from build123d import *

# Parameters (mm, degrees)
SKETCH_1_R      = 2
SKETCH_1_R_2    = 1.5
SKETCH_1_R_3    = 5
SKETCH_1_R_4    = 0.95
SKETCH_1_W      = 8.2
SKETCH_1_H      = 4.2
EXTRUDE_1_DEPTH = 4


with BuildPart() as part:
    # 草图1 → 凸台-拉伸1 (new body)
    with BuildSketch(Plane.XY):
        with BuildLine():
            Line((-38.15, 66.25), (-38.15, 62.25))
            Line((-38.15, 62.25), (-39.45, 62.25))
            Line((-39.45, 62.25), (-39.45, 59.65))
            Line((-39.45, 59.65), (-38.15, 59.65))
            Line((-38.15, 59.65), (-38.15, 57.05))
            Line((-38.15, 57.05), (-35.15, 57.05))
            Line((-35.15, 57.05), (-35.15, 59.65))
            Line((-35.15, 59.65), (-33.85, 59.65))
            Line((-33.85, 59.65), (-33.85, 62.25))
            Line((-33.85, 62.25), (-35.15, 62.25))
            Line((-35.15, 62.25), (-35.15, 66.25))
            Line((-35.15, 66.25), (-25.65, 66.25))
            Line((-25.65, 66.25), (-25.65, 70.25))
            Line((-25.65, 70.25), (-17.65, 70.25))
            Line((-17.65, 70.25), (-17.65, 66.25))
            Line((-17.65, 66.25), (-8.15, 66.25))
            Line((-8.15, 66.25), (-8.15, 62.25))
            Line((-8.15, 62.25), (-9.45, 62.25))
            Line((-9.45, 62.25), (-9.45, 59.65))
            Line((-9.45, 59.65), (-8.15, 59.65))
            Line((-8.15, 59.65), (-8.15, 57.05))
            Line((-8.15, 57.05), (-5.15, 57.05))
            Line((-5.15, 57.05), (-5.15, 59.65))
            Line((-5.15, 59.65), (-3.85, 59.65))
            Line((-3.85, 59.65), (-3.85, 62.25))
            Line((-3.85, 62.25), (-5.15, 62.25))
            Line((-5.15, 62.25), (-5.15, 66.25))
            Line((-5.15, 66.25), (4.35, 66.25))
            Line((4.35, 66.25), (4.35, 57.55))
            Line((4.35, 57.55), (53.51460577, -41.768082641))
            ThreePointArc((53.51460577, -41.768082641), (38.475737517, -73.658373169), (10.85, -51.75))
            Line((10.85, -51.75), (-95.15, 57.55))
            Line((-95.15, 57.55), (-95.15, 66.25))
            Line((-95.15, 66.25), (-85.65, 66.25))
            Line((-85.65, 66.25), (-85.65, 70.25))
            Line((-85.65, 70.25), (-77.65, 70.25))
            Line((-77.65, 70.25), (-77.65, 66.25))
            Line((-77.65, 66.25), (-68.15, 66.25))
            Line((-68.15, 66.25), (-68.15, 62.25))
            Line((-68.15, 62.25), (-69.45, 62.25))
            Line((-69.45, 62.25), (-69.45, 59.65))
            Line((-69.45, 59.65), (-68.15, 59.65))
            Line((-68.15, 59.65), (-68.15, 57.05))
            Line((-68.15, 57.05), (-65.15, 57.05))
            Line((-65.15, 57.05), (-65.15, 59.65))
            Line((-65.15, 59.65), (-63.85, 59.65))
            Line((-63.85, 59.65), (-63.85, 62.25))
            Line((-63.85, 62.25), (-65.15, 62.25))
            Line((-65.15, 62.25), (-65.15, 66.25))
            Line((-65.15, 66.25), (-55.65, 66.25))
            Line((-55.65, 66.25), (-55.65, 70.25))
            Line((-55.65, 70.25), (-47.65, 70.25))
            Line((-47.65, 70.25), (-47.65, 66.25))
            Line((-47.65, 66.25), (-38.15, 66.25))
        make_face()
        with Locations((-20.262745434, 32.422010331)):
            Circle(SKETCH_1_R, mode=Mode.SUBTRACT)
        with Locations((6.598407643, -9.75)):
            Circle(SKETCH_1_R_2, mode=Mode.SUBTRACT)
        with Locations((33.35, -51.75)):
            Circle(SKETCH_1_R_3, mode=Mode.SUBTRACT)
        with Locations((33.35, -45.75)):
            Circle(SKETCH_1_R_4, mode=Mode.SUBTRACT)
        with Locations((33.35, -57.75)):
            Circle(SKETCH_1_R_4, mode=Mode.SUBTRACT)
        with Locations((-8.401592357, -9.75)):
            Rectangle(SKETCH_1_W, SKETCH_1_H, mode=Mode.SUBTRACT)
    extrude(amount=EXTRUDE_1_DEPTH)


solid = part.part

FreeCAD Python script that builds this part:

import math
import FreeCAD as App
import Part
import Sketcher
Q = App.Units.Quantity

doc = App.newDocument("Part")
body = doc.addObject("PartDesign::Body", "Body")

# Sketch on XY plane
sketch1 = body.newObject("Sketcher::SketchObject", "Sketch")
sketch1.AttachmentSupport = (doc.getObject("XY_Plane"), [""])
sketch1.MapMode = "FlatFace"
sketch1.addGeometry(Part.LineSegment(App.Vector(-38.15, 62.25, 0), App.Vector(-38.15, 66.25, 0)), False)
sketch1.addGeometry(Part.LineSegment(App.Vector(-38.15, 66.25, 0), App.Vector(-47.65, 66.25, 0)), False)
sketch1.addGeometry(Part.LineSegment(App.Vector(-47.65, 66.25, 0), App.Vector(-47.65, 70.25, 0)), False)
sketch1.addGeometry(Part.LineSegment(App.Vector(-47.65, 70.25, 0), App.Vector(-55.65, 70.25, 0)), False)
sketch1.addGeometry(Part.LineSegment(App.Vector(-55.65, 70.25, 0), App.Vector(-55.65, 66.25, 0)), False)
sketch1.addGeometry(Part.LineSegment(App.Vector(-55.65, 66.25, 0), App.Vector(-65.15, 66.25, 0)), False)
sketch1.addGeometry(Part.LineSegment(App.Vector(-65.15, 66.25, 0), App.Vector(-65.15, 62.25, 0)), False)
sketch1.addGeometry(Part.LineSegment(App.Vector(-65.15, 62.25, 0), App.Vector(-63.85, 62.25, 0)), False)
sketch1.addGeometry(Part.LineSegment(App.Vector(-63.85, 62.25, 0), App.Vector(-63.85, 59.65, 0)), False)
sketch1.addGeometry(Part.LineSegment(App.Vector(-63.85, 59.65, 0), App.Vector(-65.15, 59.65, 0)), False)
sketch1.addGeometry(Part.LineSegment(App.Vector(-65.15, 59.65, 0), App.Vector(-65.15, 57.05, 0)), False)
sketch1.addGeometry(Part.LineSegment(App.Vector(-65.15, 57.05, 0), App.Vector(-68.15, 57.05, 0)), False)
sketch1.addGeometry(Part.LineSegment(App.Vector(-68.15, 57.05, 0), App.Vector(-68.15, 59.65, 0)), False)
sketch1.addGeometry(Part.LineSegment(App.Vector(-68.15, 59.65, 0), App.Vector(-69.45, 59.65, 0)), False)
sketch1.addGeometry(Part.LineSegment(App.Vector(-69.45, 59.65, 0), App.Vector(-69.45, 62.25, 0)), False)
sketch1.addGeometry(Part.LineSegment(App.Vector(-69.45, 62.25, 0), App.Vector(-68.15, 62.25, 0)), False)
sketch1.addGeometry(Part.LineSegment(App.Vector(-68.15, 62.25, 0), App.Vector(-68.15, 66.25, 0)), False)
sketch1.addGeometry(Part.LineSegment(App.Vector(-68.15, 66.25, 0), App.Vector(-77.65, 66.25, 0)), False)
sketch1.addGeometry(Part.LineSegment(App.Vector(-77.65, 66.25, 0), App.Vector(-77.65, 70.25, 0)), False)
sketch1.addGeometry(Part.LineSegment(App.Vector(-77.65, 70.25, 0), App.Vector(-85.65, 70.25, 0)), False)
sketch1.addGeometry(Part.LineSegment(App.Vector(-85.65, 70.25, 0), App.Vector(-85.65, 66.25, 0)), False)
sketch1.addGeometry(Part.LineSegment(App.Vector(-85.65, 66.25, 0), App.Vector(-95.15, 66.25, 0)), False)
sketch1.addGeometry(Part.LineSegment(App.Vector(-95.15, 66.25, 0), App.Vector(-95.15, 57.55, 0)), False)
sketch1.addGeometry(Part.LineSegment(App.Vector(-95.15, 57.55, 0), App.Vector(10.85, -51.75, 0)), False)
sketch1.addGeometry(Part.ArcOfCircle(Part.Circle(App.Vector(33.35, -51.75, 0), App.Vector(0, 0, 1), 22.5), math.radians(180), math.radians(386.336408)), False)
sketch1.addGeometry(Part.LineSegment(App.Vector(53.514606, -41.768083, 0), App.Vector(4.35, 57.55, 0)), False)
sketch1.addGeometry(Part.LineSegment(App.Vector(4.35, 57.55, 0), App.Vector(4.35, 66.25, 0)), False)
sketch1.addGeometry(Part.LineSegment(App.Vector(4.35, 66.25, 0), App.Vector(-5.15, 66.25, 0)), False)
sketch1.addGeometry(Part.LineSegment(App.Vector(-5.15, 66.25, 0), App.Vector(-5.15, 62.25, 0)), False)
sketch1.addGeometry(Part.LineSegment(App.Vector(-5.15, 62.25, 0), App.Vector(-3.85, 62.25, 0)), False)
sketch1.addGeometry(Part.LineSegment(App.Vector(-3.85, 62.25, 0), App.Vector(-3.85, 59.65, 0)), False)
sketch1.addGeometry(Part.LineSegment(App.Vector(-3.85, 59.65, 0), App.Vector(-5.15, 59.65, 0)), False)
sketch1.addGeometry(Part.LineSegment(App.Vector(-5.15, 59.65, 0), App.Vector(-5.15, 57.05, 0)), False)
sketch1.addGeometry(Part.LineSegment(App.Vector(-5.15, 57.05, 0), App.Vector(-8.15, 57.05, 0)), False)
sketch1.addGeometry(Part.LineSegment(App.Vector(-8.15, 57.05, 0), App.Vector(-8.15, 59.65, 0)), False)
sketch1.addGeometry(Part.LineSegment(App.Vector(-8.15, 59.65, 0), App.Vector(-9.45, 59.65, 0)), False)
sketch1.addGeometry(Part.LineSegment(App.Vector(-9.45, 59.65, 0), App.Vector(-9.45, 62.25, 0)), False)
sketch1.addGeometry(Part.LineSegment(App.Vector(-9.45, 62.25, 0), App.Vector(-8.15, 62.25, 0)), False)
sketch1.addGeometry(Part.LineSegment(App.Vector(-8.15, 62.25, 0), App.Vector(-8.15, 66.25, 0)), False)
sketch1.addGeometry(Part.LineSegment(App.Vector(-8.15, 66.25, 0), App.Vector(-17.65, 66.25, 0)), False)
sketch1.addGeometry(Part.LineSegment(App.Vector(-17.65, 66.25, 0), App.Vector(-17.65, 70.25, 0)), False)
sketch1.addGeometry(Part.LineSegment(App.Vector(-17.65, 70.25, 0), App.Vector(-25.65, 70.25, 0)), False)
sketch1.addGeometry(Part.LineSegment(App.Vector(-25.65, 70.25, 0), App.Vector(-25.65, 66.25, 0)), False)
sketch1.addGeometry(Part.LineSegment(App.Vector(-25.65, 66.25, 0), App.Vector(-35.15, 66.25, 0)), False)
sketch1.addGeometry(Part.LineSegment(App.Vector(-35.15, 66.25, 0), App.Vector(-35.15, 62.25, 0)), False)
sketch1.addGeometry(Part.LineSegment(App.Vector(-35.15, 62.25, 0), App.Vector(-33.85, 62.25, 0)), False)
sketch1.addGeometry(Part.LineSegment(App.Vector(-33.85, 62.25, 0), App.Vector(-33.85, 59.65, 0)), False)
sketch1.addGeometry(Part.LineSegment(App.Vector(-33.85, 59.65, 0), App.Vector(-35.15, 59.65, 0)), False)
sketch1.addGeometry(Part.LineSegment(App.Vector(-35.15, 59.65, 0), App.Vector(-35.15, 57.05, 0)), False)
sketch1.addGeometry(Part.LineSegment(App.Vector(-35.15, 57.05, 0), App.Vector(-38.15, 57.05, 0)), False)
sketch1.addGeometry(Part.LineSegment(App.Vector(-38.15, 57.05, 0), App.Vector(-38.15, 59.65, 0)), False)
sketch1.addGeometry(Part.LineSegment(App.Vector(-38.15, 59.65, 0), App.Vector(-39.45, 59.65, 0)), False)
sketch1.addGeometry(Part.LineSegment(App.Vector(-39.45, 59.65, 0), App.Vector(-39.45, 62.25, 0)), False)
sketch1.addGeometry(Part.LineSegment(App.Vector(-39.45, 62.25, 0), App.Vector(-38.15, 62.25, 0)), False)
sketch1.addGeometry(Part.Circle(App.Vector(33.35, -57.75, 0), App.Vector(0, 0, 1), 0.95), False)
sketch1.addGeometry(Part.Circle(App.Vector(33.35, -51.75, 0), App.Vector(0, 0, 1), 5), False)
sketch1.addGeometry(Part.Circle(App.Vector(33.35, -45.75, 0), App.Vector(0, 0, 1), 0.95), False)
sketch1.addGeometry(Part.Circle(App.Vector(6.598408, -9.75, 0), App.Vector(0, 0, 1), 1.5), False)
sketch1.addGeometry(Part.LineSegment(App.Vector(-12.501592, -11.85, 0), App.Vector(-12.501592, -7.65, 0)), False)
sketch1.addGeometry(Part.LineSegment(App.Vector(-12.501592, -7.65, 0), App.Vector(-4.301592, -7.65, 0)), False)
sketch1.addGeometry(Part.LineSegment(App.Vector(-4.301592, -7.65, 0), App.Vector(-4.301592, -11.85, 0)), False)
sketch1.addGeometry(Part.LineSegment(App.Vector(-4.301592, -11.85, 0), App.Vector(-12.501592, -11.85, 0)), False)
sketch1.addGeometry(Part.Circle(App.Vector(-20.262745, 32.42201, 0), App.Vector(0, 0, 1), 2), False)
sketch1.addConstraint(Sketcher.Constraint("Coincident", 0, 2, 1, 1))
sketch1.addConstraint(Sketcher.Constraint("Coincident", 1, 2, 2, 1))
sketch1.addConstraint(Sketcher.Constraint("Coincident", 2, 2, 3, 1))
sketch1.addConstraint(Sketcher.Constraint("Coincident", 3, 2, 4, 1))
sketch1.addConstraint(Sketcher.Constraint("Coincident", 4, 2, 5, 1))
sketch1.addConstraint(Sketcher.Constraint("Coincident", 5, 2, 6, 1))
sketch1.addConstraint(Sketcher.Constraint("Coincident", 6, 2, 7, 1))
sketch1.addConstraint(Sketcher.Constraint("Coincident", 7, 2, 8, 1))
sketch1.addConstraint(Sketcher.Constraint("Coincident", 8, 2, 9, 1))
sketch1.addConstraint(Sketcher.Constraint("Coincident", 9, 2, 10, 1))
sketch1.addConstraint(Sketcher.Constraint("Coincident", 10, 2, 11, 1))
sketch1.addConstraint(Sketcher.Constraint("Coincident", 11, 2, 12, 1))
sketch1.addConstraint(Sketcher.Constraint("Coincident", 12, 2, 13, 1))
sketch1.addConstraint(Sketcher.Constraint("Coincident", 13, 2, 14, 1))
sketch1.addConstraint(Sketcher.Constraint("Coincident", 14, 2, 15, 1))
sketch1.addConstraint(Sketcher.Constraint("Coincident", 15, 2, 16, 1))
sketch1.addConstraint(Sketcher.Constraint("Coincident", 16, 2, 17, 1))
sketch1.addConstraint(Sketcher.Constraint("Coincident", 17, 2, 18, 1))
sketch1.addConstraint(Sketcher.Constraint("Coincident", 18, 2, 19, 1))
sketch1.addConstraint(Sketcher.Constraint("Coincident", 19, 2, 20, 1))
sketch1.addConstraint(Sketcher.Constraint("Coincident", 20, 2, 21, 1))
sketch1.addConstraint(Sketcher.Constraint("Coincident", 21, 2, 22, 1))
sketch1.addConstraint(Sketcher.Constraint("Coincident", 22, 2, 23, 1))
sketch1.addConstraint(Sketcher.Constraint("Coincident", 23, 2, 24, 1))
sketch1.addConstraint(Sketcher.Constraint("Tangent", 24, 2, 25, 1))
sketch1.addConstraint(Sketcher.Constraint("Coincident", 25, 2, 26, 1))
sketch1.addConstraint(Sketcher.Constraint("Coincident", 26, 2, 27, 1))
sketch1.addConstraint(Sketcher.Constraint("Coincident", 27, 2, 28, 1))
sketch1.addConstraint(Sketcher.Constraint("Coincident", 28, 2, 29, 1))
sketch1.addConstraint(Sketcher.Constraint("Coincident", 29, 2, 30, 1))
sketch1.addConstraint(Sketcher.Constraint("Coincident", 30, 2, 31, 1))
sketch1.addConstraint(Sketcher.Constraint("Coincident", 31, 2, 32, 1))
sketch1.addConstraint(Sketcher.Constraint("Coincident", 32, 2, 33, 1))
sketch1.addConstraint(Sketcher.Constraint("Coincident", 33, 2, 34, 1))
sketch1.addConstraint(Sketcher.Constraint("Coincident", 34, 2, 35, 1))
sketch1.addConstraint(Sketcher.Constraint("Coincident", 35, 2, 36, 1))
sketch1.addConstraint(Sketcher.Constraint("Coincident", 36, 2, 37, 1))
sketch1.addConstraint(Sketcher.Constraint("Coincident", 37, 2, 38, 1))
sketch1.addConstraint(Sketcher.Constraint("Coincident", 38, 2, 39, 1))
sketch1.addConstraint(Sketcher.Constraint("Coincident", 39, 2, 40, 1))
sketch1.addConstraint(Sketcher.Constraint("Coincident", 40, 2, 41, 1))
sketch1.addConstraint(Sketcher.Constraint("Coincident", 41, 2, 42, 1))
sketch1.addConstraint(Sketcher.Constraint("Coincident", 42, 2, 43, 1))
sketch1.addConstraint(Sketcher.Constraint("Coincident", 43, 2, 44, 1))
sketch1.addConstraint(Sketcher.Constraint("Coincident", 44, 2, 45, 1))
sketch1.addConstraint(Sketcher.Constraint("Coincident", 45, 2, 46, 1))
sketch1.addConstraint(Sketcher.Constraint("Coincident", 46, 2, 47, 1))
sketch1.addConstraint(Sketcher.Constraint("Coincident", 47, 2, 48, 1))
sketch1.addConstraint(Sketcher.Constraint("Coincident", 48, 2, 49, 1))
sketch1.addConstraint(Sketcher.Constraint("Coincident", 49, 2, 50, 1))
sketch1.addConstraint(Sketcher.Constraint("Coincident", 50, 2, 51, 1))
sketch1.addConstraint(Sketcher.Constraint("Coincident", 51, 2, 52, 1))
sketch1.addConstraint(Sketcher.Constraint("Coincident", 52, 2, 53, 1))
sketch1.addConstraint(Sketcher.Constraint("Coincident", 53, 2, 0, 1))
sketch1.addConstraint(Sketcher.Constraint("Coincident", 58, 2, 59, 1))
sketch1.addConstraint(Sketcher.Constraint("Coincident", 59, 2, 60, 1))
sketch1.addConstraint(Sketcher.Constraint("Coincident", 60, 2, 61, 1))
sketch1.addConstraint(Sketcher.Constraint("Coincident", 61, 2, 58, 1))
sketch1.addConstraint(Sketcher.Constraint("Vertical", 0))
sketch1.addConstraint(Sketcher.Constraint("Horizontal", 1))
sketch1.addConstraint(Sketcher.Constraint("Vertical", 2))
sketch1.addConstraint(Sketcher.Constraint("Horizontal", 3))
sketch1.addConstraint(Sketcher.Constraint("Vertical", 4))
sketch1.addConstraint(Sketcher.Constraint("Horizontal", 5))
sketch1.addConstraint(Sketcher.Constraint("Vertical", 6))
sketch1.addConstraint(Sketcher.Constraint("Horizontal", 7))
sketch1.addConstraint(Sketcher.Constraint("Vertical", 8))
sketch1.addConstraint(Sketcher.Constraint("Horizontal", 9))
sketch1.addConstraint(Sketcher.Constraint("Vertical", 10))
sketch1.addConstraint(Sketcher.Constraint("Horizontal", 11))
sketch1.addConstraint(Sketcher.Constraint("Vertical", 12))
sketch1.addConstraint(Sketcher.Constraint("Horizontal", 13))
sketch1.addConstraint(Sketcher.Constraint("Vertical", 14))
sketch1.addConstraint(Sketcher.Constraint("Horizontal", 15))
sketch1.addConstraint(Sketcher.Constraint("Vertical", 16))
sketch1.addConstraint(Sketcher.Constraint("Horizontal", 17))
sketch1.addConstraint(Sketcher.Constraint("Vertical", 18))
sketch1.addConstraint(Sketcher.Constraint("Horizontal", 19))
sketch1.addConstraint(Sketcher.Constraint("Vertical", 20))
sketch1.addConstraint(Sketcher.Constraint("Horizontal", 21))
sketch1.addConstraint(Sketcher.Constraint("Vertical", 22))
sketch1.addConstraint(Sketcher.Constraint("Vertical", 26))
sketch1.addConstraint(Sketcher.Constraint("Horizontal", 27))
sketch1.addConstraint(Sketcher.Constraint("Vertical", 28))
sketch1.addConstraint(Sketcher.Constraint("Horizontal", 29))
sketch1.addConstraint(Sketcher.Constraint("Vertical", 30))
sketch1.addConstraint(Sketcher.Constraint("Horizontal", 31))
sketch1.addConstraint(Sketcher.Constraint("Vertical", 32))
sketch1.addConstraint(Sketcher.Constraint("Horizontal", 33))
sketch1.addConstraint(Sketcher.Constraint("Vertical", 34))
sketch1.addConstraint(Sketcher.Constraint("Horizontal", 35))
sketch1.addConstraint(Sketcher.Constraint("Vertical", 36))
sketch1.addConstraint(Sketcher.Constraint("Horizontal", 37))
sketch1.addConstraint(Sketcher.Constraint("Vertical", 38))
sketch1.addConstraint(Sketcher.Constraint("Horizontal", 39))
sketch1.addConstraint(Sketcher.Constraint("Vertical", 40))
sketch1.addConstraint(Sketcher.Constraint("Horizontal", 41))
sketch1.addConstraint(Sketcher.Constraint("Vertical", 42))
sketch1.addConstraint(Sketcher.Constraint("Horizontal", 43))
sketch1.addConstraint(Sketcher.Constraint("Vertical", 44))
sketch1.addConstraint(Sketcher.Constraint("Horizontal", 45))
sketch1.addConstraint(Sketcher.Constraint("Vertical", 46))
sketch1.addConstraint(Sketcher.Constraint("Horizontal", 47))
sketch1.addConstraint(Sketcher.Constraint("Vertical", 48))
sketch1.addConstraint(Sketcher.Constraint("Horizontal", 49))
sketch1.addConstraint(Sketcher.Constraint("Vertical", 50))
sketch1.addConstraint(Sketcher.Constraint("Horizontal", 51))
sketch1.addConstraint(Sketcher.Constraint("Vertical", 52))
sketch1.addConstraint(Sketcher.Constraint("Horizontal", 53))
sketch1.addConstraint(Sketcher.Constraint("Vertical", 58))
sketch1.addConstraint(Sketcher.Constraint("Horizontal", 59))
sketch1.addConstraint(Sketcher.Constraint("Vertical", 60))
sketch1.addConstraint(Sketcher.Constraint("Horizontal", 61))
sketch1.addConstraint(Sketcher.Constraint("Coincident", 55, 3, 24, 3))
sketch1.addConstraint(Sketcher.Constraint("Equal", 54, 56))
sketch1.addConstraint(Sketcher.Constraint("Horizontal", 1, 2, 4, 2))
sketch1.addConstraint(Sketcher.Constraint("Horizontal", 9, 2, 12, 2))
sketch1.addConstraint(Sketcher.Constraint("Horizontal", 7, 2, 14, 2))
sketch1.addConstraint(Sketcher.Constraint("Horizontal", 5, 2, 16, 2))
sketch1.addConstraint(Sketcher.Constraint("Horizontal", 3, 2, 18, 2))
sketch1.addConstraint(Sketcher.Constraint("Horizontal", 17, 2, 20, 2))
sketch1.addConstraint(Sketcher.Constraint("Horizontal", 55, 3, 23, 2))
sketch1.addConstraint(Sketcher.Constraint("Horizontal", 22, 2, 25, 2))
sketch1.addConstraint(Sketcher.Constraint("Horizontal", 21, 2, 26, 2))
sketch1.addConstraint(Sketcher.Constraint("Horizontal", 15, 2, 28, 2))
sketch1.addConstraint(Sketcher.Constraint("Horizontal", 13, 2, 30, 2))
sketch1.addConstraint(Sketcher.Constraint("Horizontal", 11, 2, 32, 2))
sketch1.addConstraint(Sketcher.Constraint("Horizontal", 31, 2, 34, 2))
sketch1.addConstraint(Sketcher.Constraint("Horizontal", 29, 2, 36, 2))
sketch1.addConstraint(Sketcher.Constraint("Horizontal", 27, 2, 38, 2))
sketch1.addConstraint(Sketcher.Constraint("Horizontal", 19, 2, 40, 2))
sketch1.addConstraint(Sketcher.Constraint("Horizontal", 39, 2, 42, 2))
sketch1.addConstraint(Sketcher.Constraint("Horizontal", 37, 2, 44, 2))
sketch1.addConstraint(Sketcher.Constraint("Horizontal", 35, 2, 46, 2))
sketch1.addConstraint(Sketcher.Constraint("Horizontal", 33, 2, 48, 2))
sketch1.addConstraint(Sketcher.Constraint("Horizontal", 47, 2, 50, 2))
sketch1.addConstraint(Sketcher.Constraint("Horizontal", 45, 2, 52, 2))
sketch1.addConstraint(Sketcher.Constraint("Vertical", 24, 3, 54, 3))
sketch1.addConstraint(Sketcher.Constraint("Vertical", 55, 3, 56, 3))
sketch1.addConstraint(Sketcher.Constraint("Vertical", 6, 2, 9, 2))
sketch1.addConstraint(Sketcher.Constraint("Vertical", 12, 2, 15, 2))
sketch1.addConstraint(Sketcher.Constraint("Vertical", 28, 2, 31, 2))
sketch1.addConstraint(Sketcher.Constraint("Vertical", 34, 2, 37, 2))
sketch1.addConstraint(Sketcher.Constraint("Vertical", 44, 2, 47, 2))
sketch1.addConstraint(Sketcher.Constraint("Vertical", 0, 2, 49, 2))
sketch1.addConstraint(Sketcher.Constraint("Equal", 1, 5))
sketch1.addConstraint(Sketcher.Constraint("Equal", 9, 13))
sketch1.addConstraint(Sketcher.Constraint("Equal", 5, 17))
sketch1.addConstraint(Sketcher.Constraint("Equal", 3, 19))
sketch1.addConstraint(Sketcher.Constraint("Equal", 17, 21))
sketch1.addConstraint(Sketcher.Constraint("Equal", 21, 27))
sketch1.addConstraint(Sketcher.Constraint("Equal", 15, 29))
sketch1.addConstraint(Sketcher.Constraint("Equal", 11, 33))
sketch1.addConstraint(Sketcher.Constraint("Equal", 31, 35))
sketch1.addConstraint(Sketcher.Constraint("Equal", 27, 39))
sketch1.addConstraint(Sketcher.Constraint("Equal", 19, 41))
sketch1.addConstraint(Sketcher.Constraint("Equal", 39, 43))
sketch1.addConstraint(Sketcher.Constraint("Equal", 37, 45))
sketch1.addConstraint(Sketcher.Constraint("Equal", 33, 49))
sketch1.addConstraint(Sketcher.Constraint("Equal", 47, 51))
sketch1.addConstraint(Sketcher.Constraint("Equal", 0, 2))
sketch1.addConstraint(Sketcher.Constraint("Equal", 8, 10))
sketch1.addConstraint(Sketcher.Constraint("Diameter", 55, Q("10 mm")))
sketch1.addConstraint(Sketcher.Constraint("Diameter", 57, Q("3 mm")))
sketch1.addConstraint(Sketcher.Constraint("Diameter", 62, Q("4 mm")))
sketch1.addConstraint(Sketcher.Constraint("Diameter", 54, Q("1.9 mm")))
sketch1.addConstraint(Sketcher.Constraint("Radius", 24, Q("22.5 mm")))
sketch1.addConstraint(Sketcher.Constraint("DistanceX", 3, 2, 3, 1, Q("8 mm")))
sketch1.addConstraint(Sketcher.Constraint("DistanceX", 11, 2, 11, 1, Q("3 mm")))
sketch1.addConstraint(Sketcher.Constraint("DistanceY", 0, 1, 0, 2, Q("4 mm")))
sketch1.addConstraint(Sketcher.Constraint("DistanceX", 1, 2, 1, 1, Q("9.5 mm")))
sketch1.addConstraint(Sketcher.Constraint("DistanceX", 7, 1, 7, 2, Q("1.3 mm")))
sketch1.addConstraint(Sketcher.Constraint("DistanceX", 59, 1, 59, 2, Q("8.2 mm")))
sketch1.addConstraint(Sketcher.Constraint("DistanceY", 8, 2, 8, 1, Q("2.6 mm")))
sketch1.addConstraint(Sketcher.Constraint("DistanceY", 22, 2, 22, 1, Q("8.7 mm")))
sketch1.addConstraint(Sketcher.Constraint("DistanceY", 58, 1, 58, 2, Q("4.2 mm")))
sketch1.addConstraint(Sketcher.Constraint("DistanceX", -1, 1, 24, 3, Q("33.35 mm")))
sketch1.addConstraint(Sketcher.Constraint("DistanceY", 24, 3, -1, 1, Q("51.75 mm")))
sketch1.addConstraint(Sketcher.Constraint("DistanceY", 54, 3, -1, 1, Q("57.75 mm")))
sketch1.addConstraint(Sketcher.Constraint("DistanceY", 56, 3, -1, 1, Q("45.75 mm")))
sketch1.addConstraint(Sketcher.Constraint("DistanceY", 57, 3, -1, 1, Q("9.75 mm")))
sketch1.addConstraint(Sketcher.Constraint("DistanceX", 0, 2, -1, 1, Q("38.15 mm")))
sketch1.addConstraint(Sketcher.Constraint("DistanceY", -1, 1, 0, 2, Q("66.25 mm")))
sketch1.addConstraint(Sketcher.Constraint("DistanceY", 58, 2, -1, 1, Q("7.65 mm")))
sketch1.addConstraint(Sketcher.Constraint("DistanceY", -1, 1, 62, 3, Q("32.42201 mm")))
sketch1.addConstraint(Sketcher.Constraint("DistanceX", -1, 1, 57, 3, Q("6.598408 mm")))
sketch1.addConstraint(Sketcher.Constraint("DistanceX", 62, 3, -1, 1, Q("20.262745 mm")))
sketch1.addConstraint(Sketcher.Constraint("DistanceX", 58, 2, -1, 1, Q("12.501592 mm")))
pad1 = body.newObject("PartDesign::Pad", "Pad")
pad1.Profile = sketch1
pad1.Length = 4

doc.recompute()
